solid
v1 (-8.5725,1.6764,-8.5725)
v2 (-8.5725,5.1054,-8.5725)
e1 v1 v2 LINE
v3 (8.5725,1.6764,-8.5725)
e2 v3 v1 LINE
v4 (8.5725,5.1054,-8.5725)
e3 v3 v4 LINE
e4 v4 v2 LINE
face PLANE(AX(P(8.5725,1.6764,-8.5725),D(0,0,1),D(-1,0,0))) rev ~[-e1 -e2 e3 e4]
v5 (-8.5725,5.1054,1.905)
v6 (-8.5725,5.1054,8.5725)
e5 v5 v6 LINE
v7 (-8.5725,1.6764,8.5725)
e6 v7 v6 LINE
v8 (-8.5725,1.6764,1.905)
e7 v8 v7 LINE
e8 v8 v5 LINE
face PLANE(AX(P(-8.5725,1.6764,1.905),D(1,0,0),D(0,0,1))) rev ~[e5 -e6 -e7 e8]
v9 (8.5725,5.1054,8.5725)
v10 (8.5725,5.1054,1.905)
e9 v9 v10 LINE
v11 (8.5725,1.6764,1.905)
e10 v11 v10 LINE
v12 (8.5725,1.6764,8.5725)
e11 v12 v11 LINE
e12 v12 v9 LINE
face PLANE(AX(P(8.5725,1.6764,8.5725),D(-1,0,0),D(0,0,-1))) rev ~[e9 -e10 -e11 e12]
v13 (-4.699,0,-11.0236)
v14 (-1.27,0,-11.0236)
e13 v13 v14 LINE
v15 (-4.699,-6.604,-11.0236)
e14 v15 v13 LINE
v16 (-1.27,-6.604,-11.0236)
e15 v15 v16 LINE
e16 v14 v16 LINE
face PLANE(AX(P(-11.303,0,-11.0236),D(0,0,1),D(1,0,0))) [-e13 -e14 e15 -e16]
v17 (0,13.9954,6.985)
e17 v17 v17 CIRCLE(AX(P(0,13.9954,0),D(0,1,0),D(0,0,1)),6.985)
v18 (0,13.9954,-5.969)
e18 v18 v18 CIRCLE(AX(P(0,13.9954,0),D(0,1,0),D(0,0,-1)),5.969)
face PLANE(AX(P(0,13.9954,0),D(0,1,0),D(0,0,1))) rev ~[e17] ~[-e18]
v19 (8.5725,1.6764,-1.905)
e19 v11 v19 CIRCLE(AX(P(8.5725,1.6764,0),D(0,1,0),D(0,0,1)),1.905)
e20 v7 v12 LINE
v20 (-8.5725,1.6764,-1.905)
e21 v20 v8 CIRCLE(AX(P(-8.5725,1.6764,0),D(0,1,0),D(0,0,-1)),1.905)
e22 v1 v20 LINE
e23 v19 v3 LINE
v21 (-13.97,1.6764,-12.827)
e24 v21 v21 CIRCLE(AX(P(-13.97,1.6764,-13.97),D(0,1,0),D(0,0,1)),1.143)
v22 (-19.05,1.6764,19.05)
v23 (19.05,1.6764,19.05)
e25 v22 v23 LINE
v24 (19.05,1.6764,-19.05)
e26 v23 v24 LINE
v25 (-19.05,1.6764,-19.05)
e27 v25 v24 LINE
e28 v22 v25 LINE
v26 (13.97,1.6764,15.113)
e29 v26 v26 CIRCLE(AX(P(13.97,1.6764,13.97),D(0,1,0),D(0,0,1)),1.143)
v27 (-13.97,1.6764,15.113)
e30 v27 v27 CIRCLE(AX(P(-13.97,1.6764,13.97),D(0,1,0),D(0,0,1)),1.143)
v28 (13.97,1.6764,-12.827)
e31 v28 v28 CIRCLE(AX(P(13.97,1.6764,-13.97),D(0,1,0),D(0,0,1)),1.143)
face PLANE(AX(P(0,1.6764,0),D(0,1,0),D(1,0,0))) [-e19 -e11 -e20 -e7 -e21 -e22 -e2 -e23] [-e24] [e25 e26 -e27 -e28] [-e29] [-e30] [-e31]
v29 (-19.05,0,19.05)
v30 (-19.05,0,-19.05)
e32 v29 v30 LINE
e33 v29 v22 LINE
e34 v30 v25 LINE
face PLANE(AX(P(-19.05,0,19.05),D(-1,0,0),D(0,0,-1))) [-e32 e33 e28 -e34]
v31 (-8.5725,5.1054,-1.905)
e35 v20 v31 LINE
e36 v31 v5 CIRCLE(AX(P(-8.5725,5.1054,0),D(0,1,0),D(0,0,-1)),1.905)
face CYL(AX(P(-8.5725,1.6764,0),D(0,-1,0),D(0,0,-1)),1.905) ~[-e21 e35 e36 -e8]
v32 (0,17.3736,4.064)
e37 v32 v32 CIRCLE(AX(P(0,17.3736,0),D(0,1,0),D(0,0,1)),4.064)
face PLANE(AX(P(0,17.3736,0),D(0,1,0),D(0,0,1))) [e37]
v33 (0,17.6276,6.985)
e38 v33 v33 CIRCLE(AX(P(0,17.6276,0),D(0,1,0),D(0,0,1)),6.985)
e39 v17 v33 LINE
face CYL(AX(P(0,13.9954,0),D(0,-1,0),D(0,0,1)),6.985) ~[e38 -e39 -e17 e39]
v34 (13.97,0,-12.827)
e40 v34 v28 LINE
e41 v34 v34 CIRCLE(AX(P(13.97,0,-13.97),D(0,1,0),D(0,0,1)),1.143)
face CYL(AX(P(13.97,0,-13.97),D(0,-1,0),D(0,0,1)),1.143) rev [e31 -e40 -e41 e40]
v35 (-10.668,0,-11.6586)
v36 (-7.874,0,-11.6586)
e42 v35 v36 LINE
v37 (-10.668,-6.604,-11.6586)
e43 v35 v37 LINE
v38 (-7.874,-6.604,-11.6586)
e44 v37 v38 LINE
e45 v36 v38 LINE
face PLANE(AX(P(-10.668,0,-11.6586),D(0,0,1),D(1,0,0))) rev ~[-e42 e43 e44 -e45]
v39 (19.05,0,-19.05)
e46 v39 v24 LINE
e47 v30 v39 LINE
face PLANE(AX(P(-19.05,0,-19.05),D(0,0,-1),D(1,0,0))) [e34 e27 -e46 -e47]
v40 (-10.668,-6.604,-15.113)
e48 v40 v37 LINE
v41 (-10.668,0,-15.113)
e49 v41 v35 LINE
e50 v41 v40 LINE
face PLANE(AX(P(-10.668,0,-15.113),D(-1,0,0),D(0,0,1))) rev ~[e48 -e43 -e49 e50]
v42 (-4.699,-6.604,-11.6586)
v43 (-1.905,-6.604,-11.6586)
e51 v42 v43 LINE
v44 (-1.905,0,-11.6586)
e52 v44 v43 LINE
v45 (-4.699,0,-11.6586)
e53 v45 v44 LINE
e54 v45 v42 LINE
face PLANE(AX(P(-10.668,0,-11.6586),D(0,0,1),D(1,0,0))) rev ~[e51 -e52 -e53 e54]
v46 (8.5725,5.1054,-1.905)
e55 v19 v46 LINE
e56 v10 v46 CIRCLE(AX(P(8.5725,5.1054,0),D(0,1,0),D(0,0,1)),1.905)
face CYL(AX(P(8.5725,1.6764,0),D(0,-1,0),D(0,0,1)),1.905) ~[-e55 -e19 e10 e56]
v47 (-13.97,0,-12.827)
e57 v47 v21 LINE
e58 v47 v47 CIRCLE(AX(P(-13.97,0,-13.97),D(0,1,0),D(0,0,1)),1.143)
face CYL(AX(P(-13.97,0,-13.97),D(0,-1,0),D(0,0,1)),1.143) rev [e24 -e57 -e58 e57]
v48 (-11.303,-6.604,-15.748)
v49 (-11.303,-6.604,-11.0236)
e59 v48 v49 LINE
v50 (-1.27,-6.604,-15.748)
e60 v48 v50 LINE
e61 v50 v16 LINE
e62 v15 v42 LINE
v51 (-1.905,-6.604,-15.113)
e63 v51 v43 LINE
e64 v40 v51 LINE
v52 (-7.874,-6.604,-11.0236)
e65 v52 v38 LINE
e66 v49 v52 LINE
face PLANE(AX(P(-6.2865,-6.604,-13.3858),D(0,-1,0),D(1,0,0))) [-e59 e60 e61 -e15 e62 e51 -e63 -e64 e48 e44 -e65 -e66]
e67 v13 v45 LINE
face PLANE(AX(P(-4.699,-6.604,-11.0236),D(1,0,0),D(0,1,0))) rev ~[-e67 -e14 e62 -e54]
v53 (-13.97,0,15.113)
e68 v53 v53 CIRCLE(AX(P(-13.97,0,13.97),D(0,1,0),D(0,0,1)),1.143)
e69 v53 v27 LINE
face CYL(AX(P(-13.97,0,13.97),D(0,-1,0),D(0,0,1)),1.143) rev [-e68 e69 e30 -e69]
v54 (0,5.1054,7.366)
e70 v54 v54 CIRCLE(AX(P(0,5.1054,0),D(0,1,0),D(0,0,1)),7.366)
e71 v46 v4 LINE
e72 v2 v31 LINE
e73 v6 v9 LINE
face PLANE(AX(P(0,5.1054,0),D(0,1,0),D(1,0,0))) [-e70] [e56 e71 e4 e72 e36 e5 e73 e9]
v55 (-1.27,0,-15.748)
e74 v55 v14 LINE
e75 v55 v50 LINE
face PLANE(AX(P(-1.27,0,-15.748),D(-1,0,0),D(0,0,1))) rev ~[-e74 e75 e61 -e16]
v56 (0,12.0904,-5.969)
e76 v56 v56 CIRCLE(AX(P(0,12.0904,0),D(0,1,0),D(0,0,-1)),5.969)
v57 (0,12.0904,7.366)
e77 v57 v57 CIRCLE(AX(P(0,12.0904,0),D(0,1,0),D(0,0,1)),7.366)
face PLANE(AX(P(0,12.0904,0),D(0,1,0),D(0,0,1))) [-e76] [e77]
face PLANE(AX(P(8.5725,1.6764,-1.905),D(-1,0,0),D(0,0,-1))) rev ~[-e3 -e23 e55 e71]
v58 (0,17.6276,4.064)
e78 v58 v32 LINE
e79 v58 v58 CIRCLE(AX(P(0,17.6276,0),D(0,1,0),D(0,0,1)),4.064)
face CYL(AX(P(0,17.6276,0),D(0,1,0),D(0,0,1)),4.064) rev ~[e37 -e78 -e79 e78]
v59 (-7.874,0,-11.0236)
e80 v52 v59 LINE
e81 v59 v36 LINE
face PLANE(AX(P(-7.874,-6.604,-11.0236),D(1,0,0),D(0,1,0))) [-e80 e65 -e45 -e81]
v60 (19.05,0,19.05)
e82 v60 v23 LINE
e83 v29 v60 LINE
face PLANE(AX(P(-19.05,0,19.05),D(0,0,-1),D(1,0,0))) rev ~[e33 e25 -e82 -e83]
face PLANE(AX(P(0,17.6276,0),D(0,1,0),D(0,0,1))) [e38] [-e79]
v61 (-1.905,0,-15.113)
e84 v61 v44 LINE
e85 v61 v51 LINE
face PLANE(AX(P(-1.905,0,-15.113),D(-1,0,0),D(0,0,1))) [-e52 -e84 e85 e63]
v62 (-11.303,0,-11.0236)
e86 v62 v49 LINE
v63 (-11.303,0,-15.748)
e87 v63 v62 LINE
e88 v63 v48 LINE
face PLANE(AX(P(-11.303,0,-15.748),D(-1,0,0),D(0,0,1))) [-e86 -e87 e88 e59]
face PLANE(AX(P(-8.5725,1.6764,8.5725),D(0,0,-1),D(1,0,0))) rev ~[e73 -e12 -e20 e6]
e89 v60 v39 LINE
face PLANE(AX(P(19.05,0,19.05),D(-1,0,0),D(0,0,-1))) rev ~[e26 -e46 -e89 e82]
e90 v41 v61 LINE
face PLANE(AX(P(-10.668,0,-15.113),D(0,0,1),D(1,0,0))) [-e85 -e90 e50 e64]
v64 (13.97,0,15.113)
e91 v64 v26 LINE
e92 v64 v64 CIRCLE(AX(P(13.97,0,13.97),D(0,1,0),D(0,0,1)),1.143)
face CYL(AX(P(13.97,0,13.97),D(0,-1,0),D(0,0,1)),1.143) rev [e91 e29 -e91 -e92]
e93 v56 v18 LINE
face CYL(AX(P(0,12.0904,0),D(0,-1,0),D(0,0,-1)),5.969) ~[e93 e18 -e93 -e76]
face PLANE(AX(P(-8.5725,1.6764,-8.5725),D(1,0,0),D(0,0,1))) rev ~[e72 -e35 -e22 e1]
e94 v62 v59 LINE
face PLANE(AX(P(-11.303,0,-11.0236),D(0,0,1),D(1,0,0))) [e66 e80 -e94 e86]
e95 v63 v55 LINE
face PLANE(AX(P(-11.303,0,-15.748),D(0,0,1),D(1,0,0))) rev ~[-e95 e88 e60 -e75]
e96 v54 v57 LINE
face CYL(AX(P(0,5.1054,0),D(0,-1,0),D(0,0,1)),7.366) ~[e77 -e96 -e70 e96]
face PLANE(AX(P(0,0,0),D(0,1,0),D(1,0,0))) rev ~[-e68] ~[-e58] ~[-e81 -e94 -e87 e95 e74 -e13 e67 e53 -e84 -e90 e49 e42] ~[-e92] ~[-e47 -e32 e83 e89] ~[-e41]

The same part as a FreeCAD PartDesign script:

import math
import FreeCAD as App
import Part
import Sketcher

V = App.Vector
Q = App.Units.Quantity

doc = App.newDocument("Part")
body = doc.addObject("PartDesign::Body", "Body")

# Sketch on XZ plane
sketch1 = body.newObject("Sketcher::SketchObject", "Sketch")
sketch1.AttachmentSupport = (doc.getObject("XZ_Plane"), [""])
sketch1.MapMode = "FlatFace"
sketch1.addGeometry([
    Part.LineSegment(V(-19.1, -19.1, 0), V(-19.1, 19.1, 0)),  # 0
    Part.LineSegment(V(-19.1, 19.1, 0), V(19.1, 19.1, 0)),  # 1
    Part.LineSegment(V(19.1, 19.1, 0), V(19.1, -19.1, 0)),  # 2
    Part.LineSegment(V(19.1, -19.1, 0), V(-19.1, -19.1, 0)),  # 3
    Part.Circle(V(-14, 14, 0), V(0, 0, 1), 1.1),  # 4
    Part.Circle(V(14, 14, 0), V(0, 0, 1), 1.1),  # 5
    Part.Circle(V(-14, -14, 0), V(0, 0, 1), 1.1),  # 6
    Part.Circle(V(14, -14, 0), V(0, 0, 1), 1.1),  # 7
], False)
sketch1.addConstraint([
    Sketcher.Constraint("Coincident", 0, 2, 1, 1),
    Sketcher.Constraint("Coincident", 1, 2, 2, 1),
    Sketcher.Constraint("Coincident", 2, 2, 3, 1),
    Sketcher.Constraint("Coincident", 3, 2, 0, 1),
    Sketcher.Constraint("Vertical", 0),
    Sketcher.Constraint("Horizontal", 1),
    Sketcher.Constraint("Vertical", 2),
    Sketcher.Constraint("Horizontal", 3),
    Sketcher.Constraint("Equal", 4, 5),
    Sketcher.Constraint("Equal", 5, 6),
    Sketcher.Constraint("Equal", 6, 7),
    Sketcher.Constraint("Symmetric", 5, 3, 6, 3, -1, 1),
    Sketcher.Constraint("Symmetric", 4, 3, 7, 3, -1, 1),
    Sketcher.Constraint("Symmetric", 0, 2, 2, 2, -1, 1),
    Sketcher.Constraint("Symmetric", 4, 3, 5, 3, -2),
    Sketcher.Constraint("Equal", 3, 0),
    Sketcher.Constraint("Diameter", 4, Q("0.09 in")),
    Sketcher.Constraint("DistanceX", 1, 1, 1, 2, Q("1.5 in")),
    Sketcher.Constraint("DistanceX", 4, 3, 5, 3, Q("1.1 in")),
    Sketcher.Constraint("DistanceY", 6, 3, 4, 3, Q("1.1 in")),
])
pad1 = body.newObject("PartDesign::Pad", "Pad")
pad1.Profile = sketch1
pad1.Length = Q("0.066 in")
pad1.Reversed = True

# Sketch on XZ plane
sketch2 = body.newObject("Sketcher::SketchObject", "Sketch001")
sketch2.AttachmentSupport = (doc.getObject("XZ_Plane"), [""])
sketch2.MapMode = "FlatFace"
sketch2.AttachmentOffset = App.Placement(V(0, 0, -0.066 * 25.4), App.Rotation())
sketch2.addGeometry([
    Part.LineSegment(V(-8.6, 1.9, 0), V(-8.6, 8.6, 0)),  # 0
    Part.LineSegment(V(-8.6, 8.6, 0), V(8.6, 8.6, 0)),  # 1
    Part.LineSegment(V(8.6, 8.6, 0), V(8.6, 1.9, 0)),  # 2
    Part.ArcOfCircle(Part.Circle(V(8.6, 0, 0), V(0, 0, 1), 1.9), math.radians(-90), math.radians(90)),  # 3
    Part.LineSegment(V(8.6, -1.9, 0), V(8.6, -8.6, 0)),  # 4
    Part.LineSegment(V(8.6, -8.6, 0), V(-8.6, -8.6, 0)),  # 5
    Part.LineSegment(V(-8.6, -8.6, 0), V(-8.6, -1.9, 0)),  # 6
    Part.ArcOfCircle(Part.Circle(V(-8.6, 0, 0), V(0, 0, 1), 1.9), math.radians(90), math.radians(270)),  # 7
], False)
sketch2.addConstraint([
    Sketcher.Constraint("Coincident", 0, 2, 1, 1),
    Sketcher.Constraint("Coincident", 1, 2, 2, 1),
    Sketcher.Constraint("Coincident", 2, 2, 3, 2),
    Sketcher.Constraint("Coincident", 3, 1, 4, 1),
    Sketcher.Constraint("Coincident", 4, 2, 5, 1),
    Sketcher.Constraint("Coincident", 5, 2, 6, 1),
    Sketcher.Constraint("Coincident", 6, 2, 7, 2),
    Sketcher.Constraint("Coincident", 7, 1, 0, 1),
    Sketcher.Constraint("Vertical", 0),
    Sketcher.Constraint("Horizontal", 1),
    Sketcher.Constraint("Vertical", 2),
    Sketcher.Constraint("Vertical", 4),
    Sketcher.Constraint("Horizontal", 5),
    Sketcher.Constraint("Vertical", 6),
    Sketcher.Constraint("Equal", 3, 7),
    Sketcher.Constraint("Symmetric", 3, 3, 7, 3, -1, 1),
    Sketcher.Constraint("Symmetric", 0, 2, 4, 2, -1, 1),
    Sketcher.Constraint("Symmetric", 3, 1, 6, 2, -2),
    Sketcher.Constraint("Vertical", 7, 3, 0, 2),
    Sketcher.Constraint("Vertical", 3, 3, 1, 2),
    Sketcher.Constraint("Radius", 3, Q("0.075 in")),
    Sketcher.Constraint("DistanceX", 1, 1, 1, 2, Q("0.675 in")),
    Sketcher.Constraint("DistanceY", 0, 1, 0, 2, Q("0.2625 in")),
])
pad2 = body.newObject("PartDesign::Pad", "Pad001")
pad2.Profile = sketch2
pad2.Length = Q("0.135 in")
pad2.Reversed = True

# Sketch on XZ plane
sketch3 = body.newObject("Sketcher::SketchObject", "Sketch002")
sketch3.AttachmentSupport = (doc.getObject("XZ_Plane"), [""])
sketch3.MapMode = "FlatFace"
sketch3.AttachmentOffset = App.Placement(V(0, 0, -0.201 * 25.4), App.Rotation())
sketch3.addGeometry(Part.Circle(V(0, 0, 0), V(0, 0, 1), 7), False)
sketch3.addConstraint([
    Sketcher.Constraint("Coincident", 0, 3, -1, 1),
    Sketcher.Constraint("Diameter", 0, Q("0.58 in")),
])
pad3 = body.newObject("PartDesign::Pad", "Pad002")
pad3.Profile = sketch3
pad3.Length = Q("0.275 in")
pad3.Reversed = True

# Sketch on XZ plane
sketch4 = body.newObject("Sketcher::SketchObject", "Sketch003")
sketch4.AttachmentSupport = (doc.getObject("XZ_Plane"), [""])
sketch4.MapMode = "FlatFace"
sketch4.AttachmentOffset = App.Placement(V(0, 0, -0.476 * 25.4), App.Rotation())
sketch4.addGeometry(Part.Circle(V(0, 0, 0), V(0, 0, 1), 6), False)
sketch4.addConstraint([
    Sketcher.Constraint("Coincident", 0, 3, -1, 1),
    Sketcher.Constraint("Diameter", 0, Q("0.47 in")),
])
pad4 = body.newObject("PartDesign::Pad", "Pad003")
pad4.Profile = sketch4
pad4.Length = Q("0.075 in")
pad4.Reversed = True

# Sketch on XZ plane
sketch5 = body.newObject("Sketcher::SketchObject", "Sketch004")
sketch5.AttachmentSupport = (doc.getObject("XZ_Plane"), [""])
sketch5.MapMode = "FlatFace"
sketch5.AttachmentOffset = App.Placement(V(0, 0, -0.551 * 25.4), App.Rotation())
sketch5.addGeometry(Part.Circle(V(0, 0, 0), V(0, 0, 1), 7), False)
sketch5.addConstraint([
    Sketcher.Constraint("Coincident", 0, 3, -1, 1),
    Sketcher.Constraint("Diameter", 0, Q("0.55 in")),
])
pad5 = body.newObject("PartDesign::Pad", "Pad004")
pad5.Profile = sketch5
pad5.Length = Q("0.143 in")
pad5.Reversed = True

# Sketch on XZ plane
sketch6 = body.newObject("Sketcher::SketchObject", "Sketch005")
sketch6.AttachmentSupport = (doc.getObject("XZ_Plane"), [""])
sketch6.MapMode = "FlatFace"
sketch6.AttachmentOffset = App.Placement(V(0, 0, -0.694 * 25.4), App.Rotation())
sketch6.addGeometry(Part.Circle(V(0, 0, 0), V(0, 0, 1), 4.1), False)
sketch6.addConstraint([
    Sketcher.Constraint("Coincident", 0, 3, -1, 1),
    Sketcher.Constraint("Diameter", 0, Q("0.32 in")),
])
pocket1 = body.newObject("PartDesign::Pocket", "Pocket")
pocket1.Profile = sketch6
pocket1.Length = Q("0.01 in")
pocket1.Reversed = True

# Sketch on XZ plane
sketch7 = body.newObject("Sketcher::SketchObject", "Sketch006")
sketch7.AttachmentSupport = (doc.getObject("XZ_Plane"), [""])
sketch7.MapMode = "FlatFace"
sketch7.addGeometry([
    Part.LineSegment(V(-11.3, -11, 0), V(-11.3, -15.7, 0)),  # 0
    Part.LineSegment(V(-11.3, -15.7, 0), V(-1.3, -15.7, 0)),  # 1
    Part.LineSegment(V(-1.3, -15.7, 0), V(-1.3, -11, 0)),  # 2
    Part.LineSegment(V(-1.3, -11, 0), V(-11.3, -11, 0)),  # 3
    Part.LineSegment(V(-1.9, -15.1, 0), V(-10.7, -15.1, 0)),  # 4
    Part.LineSegment(V(-10.7, -15.1, 0), V(-10.7, -11.7, 0)),  # 5
    Part.LineSegment(V(-10.7, -11.7, 0), V(-1.9, -11.7, 0)),  # 6
    Part.LineSegment(V(-1.9, -11.7, 0), V(-1.9, -15.1, 0)),  # 7
], False)
sketch7.addConstraint([
    Sketcher.Constraint("Coincident", 0, 2, 1, 1),
    Sketcher.Constraint("Coincident", 1, 2, 2, 1),
    Sketcher.Constraint("Coincident", 2, 2, 3, 1),
    Sketcher.Constraint("Coincident", 3, 2, 0, 1),
    Sketcher.Constraint("Coincident", 4, 2, 5, 1),
    Sketcher.Constraint("Coincident", 5, 2, 6, 1),
    Sketcher.Constraint("Coincident", 6, 2, 7, 1),
    Sketcher.Constraint("Coincident", 7, 2, 4, 1),
    Sketcher.Constraint("Vertical", 0),
    Sketcher.Constraint("Horizontal", 1),
    Sketcher.Constraint("Vertical", 2),
    Sketcher.Constraint("Horizontal", 3),
    Sketcher.Constraint("Horizontal", 4),
    Sketcher.Constraint("Vertical", 5),
    Sketcher.Constraint("Horizontal", 6),
    Sketcher.Constraint("Vertical", 7),
    Sketcher.Constraint("DistanceX", 1, 1, 1, 2, Q("0.395 in")),
    Sketcher.Constraint("DistanceX", 4, 2, 4, 1, Q("0.345 in")),
    Sketcher.Constraint("DistanceY", 0, 2, 0, 1, Q("0.186 in")),
    Sketcher.Constraint("DistanceY", 5, 1, 5, 2, Q("0.136 in")),
    Sketcher.Constraint("DistanceY", 0, 2, -1, 1, Q("0.62 in")),
    Sketcher.Constraint("DistanceX", 1, 2, -1, 1, Q("0.05 in")),
    Sketcher.Constraint("DistanceX", 4, 2, -1, 1, Q("0.42 in")),
    Sketcher.Constraint("DistanceY", 4, 2, -1, 1, Q("0.595 in")),
])
pad6 = body.newObject("PartDesign::Pad", "Pad005")
pad6.Profile = sketch7
pad6.Length = Q("0.26 in")

# Sketch on XY plane
sketch8 = body.newObject("Sketcher::SketchObject", "Sketch007")
sketch8.AttachmentSupport = (doc.getObject("XY_Plane"), [""])
sketch8.MapMode = "FlatFace"
sketch8.AttachmentOffset = App.Placement(V(0, 0, -0.434 * 25.4), App.Rotation())
sketch8.addGeometry([
    Part.LineSegment(V(-7.9, 0, 0), V(-7.9, -6.6, 0)),
    Part.LineSegment(V(-7.9, -6.6, 0), V(-4.7, -6.6, 0)),
    Part.LineSegment(V(-4.7, -6.6, 0), V(-4.7, 0, 0)),
    Part.LineSegment(V(-4.7, 0, 0), V(-7.9, 0, 0)),
], False)
sketch8.addConstraint([
    Sketcher.Constraint("Coincident", 0, 2, 1, 1),
    Sketcher.Constraint("Coincident", 1, 2, 2, 1),
    Sketcher.Constraint("Coincident", 2, 2, 3, 1),
    Sketcher.Constraint("Coincident", 3, 2, 0, 1),
    Sketcher.Constraint("Vertical", 0),
    Sketcher.Constraint("Horizontal", 1),
    Sketcher.Constraint("Vertical", 2),
    Sketcher.Constraint("Horizontal", 3),
    Sketcher.Constraint("PointOnObject", 2, 2, -1),
    Sketcher.Constraint("DistanceY", 0, 2, 0, 1, Q("0.26 in")),
    Sketcher.Constraint("DistanceX", 1, 1, 1, 2, Q("0.125 in")),
    Sketcher.Constraint("DistanceX", 0, 2, -1, 1, Q("0.31 in")),
])
pocket2 = body.newObject("PartDesign::Pocket", "Pocket001")
pocket2.Profile = sketch8
pocket2.Type = "UpToFirst"

doc.recompute()
